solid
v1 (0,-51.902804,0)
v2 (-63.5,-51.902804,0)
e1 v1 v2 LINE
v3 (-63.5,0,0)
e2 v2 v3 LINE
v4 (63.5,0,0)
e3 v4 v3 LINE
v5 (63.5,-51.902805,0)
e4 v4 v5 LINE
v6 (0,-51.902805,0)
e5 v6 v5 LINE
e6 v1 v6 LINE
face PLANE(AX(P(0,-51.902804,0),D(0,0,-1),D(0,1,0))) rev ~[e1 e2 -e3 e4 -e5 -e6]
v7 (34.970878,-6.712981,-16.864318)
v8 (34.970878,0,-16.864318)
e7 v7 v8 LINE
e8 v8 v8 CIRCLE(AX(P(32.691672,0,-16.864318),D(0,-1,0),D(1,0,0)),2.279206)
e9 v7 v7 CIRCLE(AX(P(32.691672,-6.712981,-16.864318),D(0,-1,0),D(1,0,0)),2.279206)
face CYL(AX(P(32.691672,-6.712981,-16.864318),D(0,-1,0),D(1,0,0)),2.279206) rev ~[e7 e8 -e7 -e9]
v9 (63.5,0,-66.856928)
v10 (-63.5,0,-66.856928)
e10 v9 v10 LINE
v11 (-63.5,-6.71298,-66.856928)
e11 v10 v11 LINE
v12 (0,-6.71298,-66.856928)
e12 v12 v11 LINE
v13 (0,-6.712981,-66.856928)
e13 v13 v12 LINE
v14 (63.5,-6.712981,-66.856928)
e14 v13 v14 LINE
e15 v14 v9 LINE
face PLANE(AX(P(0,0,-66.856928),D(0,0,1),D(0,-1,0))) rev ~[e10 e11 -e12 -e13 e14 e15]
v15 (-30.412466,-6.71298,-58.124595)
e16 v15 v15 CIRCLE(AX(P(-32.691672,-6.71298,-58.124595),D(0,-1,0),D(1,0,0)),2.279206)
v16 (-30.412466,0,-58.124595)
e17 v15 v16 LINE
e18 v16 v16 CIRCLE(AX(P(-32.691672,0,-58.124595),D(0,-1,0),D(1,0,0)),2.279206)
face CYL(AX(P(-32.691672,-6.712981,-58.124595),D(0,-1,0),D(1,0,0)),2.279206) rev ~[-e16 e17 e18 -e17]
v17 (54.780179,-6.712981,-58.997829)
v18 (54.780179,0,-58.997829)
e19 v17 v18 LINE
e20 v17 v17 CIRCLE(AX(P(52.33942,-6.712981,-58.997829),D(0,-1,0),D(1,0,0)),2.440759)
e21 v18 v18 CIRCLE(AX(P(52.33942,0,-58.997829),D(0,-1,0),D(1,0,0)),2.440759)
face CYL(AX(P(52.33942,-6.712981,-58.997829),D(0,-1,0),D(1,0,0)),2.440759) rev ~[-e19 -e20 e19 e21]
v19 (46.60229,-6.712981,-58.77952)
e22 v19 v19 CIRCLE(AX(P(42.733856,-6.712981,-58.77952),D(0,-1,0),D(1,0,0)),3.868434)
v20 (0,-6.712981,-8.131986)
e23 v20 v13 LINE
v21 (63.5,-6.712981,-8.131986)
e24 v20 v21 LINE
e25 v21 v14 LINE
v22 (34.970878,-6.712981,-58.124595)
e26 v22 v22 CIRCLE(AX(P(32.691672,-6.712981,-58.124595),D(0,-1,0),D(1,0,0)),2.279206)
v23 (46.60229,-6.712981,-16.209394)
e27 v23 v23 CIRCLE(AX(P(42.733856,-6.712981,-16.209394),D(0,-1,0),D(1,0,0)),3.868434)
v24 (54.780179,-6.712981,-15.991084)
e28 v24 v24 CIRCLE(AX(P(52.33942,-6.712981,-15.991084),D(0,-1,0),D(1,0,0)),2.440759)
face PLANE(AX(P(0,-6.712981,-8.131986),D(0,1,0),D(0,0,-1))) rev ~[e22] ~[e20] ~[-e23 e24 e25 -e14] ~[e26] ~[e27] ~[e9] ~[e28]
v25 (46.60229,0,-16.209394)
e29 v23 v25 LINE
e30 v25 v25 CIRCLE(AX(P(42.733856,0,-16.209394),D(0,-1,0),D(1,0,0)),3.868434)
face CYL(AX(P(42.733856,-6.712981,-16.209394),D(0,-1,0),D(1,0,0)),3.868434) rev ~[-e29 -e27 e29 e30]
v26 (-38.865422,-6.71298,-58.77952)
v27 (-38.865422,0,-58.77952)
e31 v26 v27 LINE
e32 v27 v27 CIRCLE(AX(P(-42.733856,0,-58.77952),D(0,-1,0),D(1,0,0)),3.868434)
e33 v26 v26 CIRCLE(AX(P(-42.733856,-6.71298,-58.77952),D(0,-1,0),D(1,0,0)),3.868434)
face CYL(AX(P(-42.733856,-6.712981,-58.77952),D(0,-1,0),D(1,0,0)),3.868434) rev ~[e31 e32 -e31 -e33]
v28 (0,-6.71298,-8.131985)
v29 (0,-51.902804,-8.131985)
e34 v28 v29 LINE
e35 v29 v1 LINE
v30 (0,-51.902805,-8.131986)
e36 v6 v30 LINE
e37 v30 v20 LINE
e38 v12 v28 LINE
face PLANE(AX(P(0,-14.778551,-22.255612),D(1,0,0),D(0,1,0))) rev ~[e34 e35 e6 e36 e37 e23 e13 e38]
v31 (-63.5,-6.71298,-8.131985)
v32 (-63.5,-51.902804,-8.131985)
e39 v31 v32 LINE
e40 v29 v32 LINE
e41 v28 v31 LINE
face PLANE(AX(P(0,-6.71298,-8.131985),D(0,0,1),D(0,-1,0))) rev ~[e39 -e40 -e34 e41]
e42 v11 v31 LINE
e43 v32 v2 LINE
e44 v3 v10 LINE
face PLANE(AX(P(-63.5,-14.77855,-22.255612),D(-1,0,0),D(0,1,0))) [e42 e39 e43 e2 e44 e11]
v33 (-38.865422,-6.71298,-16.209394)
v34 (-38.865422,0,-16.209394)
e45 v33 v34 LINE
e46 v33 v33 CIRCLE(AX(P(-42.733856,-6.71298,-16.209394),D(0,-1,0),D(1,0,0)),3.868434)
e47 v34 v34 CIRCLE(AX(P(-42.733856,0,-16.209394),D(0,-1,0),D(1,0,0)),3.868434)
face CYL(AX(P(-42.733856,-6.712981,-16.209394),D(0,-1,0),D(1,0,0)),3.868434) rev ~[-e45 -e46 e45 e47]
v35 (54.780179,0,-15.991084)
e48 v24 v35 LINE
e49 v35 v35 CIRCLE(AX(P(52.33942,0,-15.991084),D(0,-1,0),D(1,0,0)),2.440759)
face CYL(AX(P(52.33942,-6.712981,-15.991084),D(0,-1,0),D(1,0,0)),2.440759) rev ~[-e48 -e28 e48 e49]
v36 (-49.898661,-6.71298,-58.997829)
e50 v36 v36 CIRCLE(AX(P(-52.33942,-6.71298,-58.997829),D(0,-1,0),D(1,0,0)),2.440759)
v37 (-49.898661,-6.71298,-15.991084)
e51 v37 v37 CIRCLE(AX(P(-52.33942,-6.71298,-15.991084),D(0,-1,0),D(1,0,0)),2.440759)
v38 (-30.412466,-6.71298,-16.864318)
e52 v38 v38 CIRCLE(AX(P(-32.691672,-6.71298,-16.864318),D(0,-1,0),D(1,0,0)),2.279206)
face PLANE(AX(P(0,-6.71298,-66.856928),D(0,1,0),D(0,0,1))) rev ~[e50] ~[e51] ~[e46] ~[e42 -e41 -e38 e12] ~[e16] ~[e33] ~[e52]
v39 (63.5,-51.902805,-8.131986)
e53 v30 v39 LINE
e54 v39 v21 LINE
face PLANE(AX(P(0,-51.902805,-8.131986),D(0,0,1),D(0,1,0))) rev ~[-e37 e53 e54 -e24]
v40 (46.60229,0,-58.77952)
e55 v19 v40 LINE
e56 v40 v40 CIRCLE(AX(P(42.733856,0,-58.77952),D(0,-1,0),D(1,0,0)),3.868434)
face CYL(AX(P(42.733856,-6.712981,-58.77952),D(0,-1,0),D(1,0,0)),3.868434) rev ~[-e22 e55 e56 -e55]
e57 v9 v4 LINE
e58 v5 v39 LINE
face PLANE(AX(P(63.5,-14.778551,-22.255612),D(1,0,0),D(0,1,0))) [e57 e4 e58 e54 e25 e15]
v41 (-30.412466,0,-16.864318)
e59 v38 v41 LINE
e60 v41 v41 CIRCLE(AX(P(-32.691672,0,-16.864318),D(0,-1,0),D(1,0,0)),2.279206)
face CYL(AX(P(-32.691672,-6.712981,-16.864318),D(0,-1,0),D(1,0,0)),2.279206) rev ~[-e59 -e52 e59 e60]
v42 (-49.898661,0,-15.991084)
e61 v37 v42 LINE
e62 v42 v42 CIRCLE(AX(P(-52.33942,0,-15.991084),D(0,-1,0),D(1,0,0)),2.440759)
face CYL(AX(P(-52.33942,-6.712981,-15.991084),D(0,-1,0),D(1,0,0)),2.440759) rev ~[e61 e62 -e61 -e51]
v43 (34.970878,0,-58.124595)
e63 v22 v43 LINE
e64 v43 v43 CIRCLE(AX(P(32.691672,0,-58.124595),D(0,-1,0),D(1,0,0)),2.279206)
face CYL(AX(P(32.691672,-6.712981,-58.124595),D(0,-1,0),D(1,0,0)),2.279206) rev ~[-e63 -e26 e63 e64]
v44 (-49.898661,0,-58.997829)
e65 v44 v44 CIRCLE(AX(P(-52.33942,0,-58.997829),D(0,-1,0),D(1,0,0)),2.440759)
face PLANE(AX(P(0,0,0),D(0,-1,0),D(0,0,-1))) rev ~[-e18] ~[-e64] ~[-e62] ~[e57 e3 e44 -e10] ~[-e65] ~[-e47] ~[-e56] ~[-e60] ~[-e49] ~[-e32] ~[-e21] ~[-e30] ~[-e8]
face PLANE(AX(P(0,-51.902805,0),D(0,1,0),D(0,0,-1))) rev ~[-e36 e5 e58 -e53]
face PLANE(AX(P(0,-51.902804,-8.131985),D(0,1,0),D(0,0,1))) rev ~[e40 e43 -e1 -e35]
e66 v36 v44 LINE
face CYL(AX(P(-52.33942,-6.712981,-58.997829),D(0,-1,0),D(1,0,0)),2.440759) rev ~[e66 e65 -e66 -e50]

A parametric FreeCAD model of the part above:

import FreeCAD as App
import Part
import Sketcher
Q = App.Units.Quantity

doc = App.newDocument("Part")
body = doc.addObject("PartDesign::Body", "Body")

sketch1 = doc.addObject("Sketcher::SketchObject", "Sketch")
body.addObject(sketch1)
sketch1.AttachmentSupport = (doc.YZ_Plane, [""])
sketch1.MapMode = "FlatFace"
sketch1.addGeometry([
    Part.LineSegment(App.Vector(0, 0, 0), App.Vector(-52, 0, 0)),
    Part.LineSegment(App.Vector(-52, 0, 0), App.Vector(-52, -8, 0)),
    Part.LineSegment(App.Vector(-52, -8, 0), App.Vector(-7, -8, 0)),
    Part.LineSegment(App.Vector(-7, -8, 0), App.Vector(-7, -67, 0)),
    Part.LineSegment(App.Vector(-7, -67, 0), App.Vector(0, -67, 0)),
    Part.LineSegment(App.Vector(0, -67, 0), App.Vector(0, 0, 0)),
], False)
sketch1.addConstraint([
    Sketcher.Constraint("Coincident", 0, 2, 1, 1),
    Sketcher.Constraint("Coincident", 1, 2, 2, 1),
    Sketcher.Constraint("Coincident", 2, 2, 3, 1),
    Sketcher.Constraint("Coincident", 3, 2, 4, 1),
    Sketcher.Constraint("Coincident", 4, 2, 5, 1),
    Sketcher.Constraint("Coincident", 5, 2, 0, 1),
    Sketcher.Constraint("Horizontal", 0),
    Sketcher.Constraint("Vertical", 1),
    Sketcher.Constraint("Horizontal", 2),
    Sketcher.Constraint("Vertical", 3),
    Sketcher.Constraint("Horizontal", 4),
    Sketcher.Constraint("Vertical", 5),
    Sketcher.Constraint("Coincident", 5, 2, -1, 1),
    Sketcher.Constraint("DistanceX", 4, 1, 4, 2, 6.712981),
    Sketcher.Constraint("DistanceX", 0, 2, 0, 1, 51.902805),
    Sketcher.Constraint("DistanceY", 1, 2, 1, 1, 8.131986),
    Sketcher.Constraint("DistanceY", 3, 2, 3, 1, 58.724942),
])
pad1 = doc.addObject("PartDesign::Pad", "Pad")
body.addObject(pad1)
pad1.Profile = sketch1
pad1.Length = Q("2.5 in")

sketch2 = doc.addObject("Sketcher::SketchObject", "Sketch001")
body.addObject(sketch2)
sketch2.AttachmentSupport = (doc.YZ_Plane, [""])
sketch2.MapMode = "FlatFace"
sketch2.addGeometry([
    Part.LineSegment(App.Vector(-52, 0, 0), App.Vector(0, 0, 0)),
    Part.LineSegment(App.Vector(0, 0, 0), App.Vector(0, -67, 0)),
    Part.LineSegment(App.Vector(0, -67, 0), App.Vector(-7, -67, 0)),
    Part.LineSegment(App.Vector(-7, -67, 0), App.Vector(-7, -8, 0)),
    Part.LineSegment(App.Vector(-7, -8, 0), App.Vector(-52, -8, 0)),
    Part.LineSegment(App.Vector(-52, -8, 0), App.Vector(-52, 0, 0)),
], False)
sketch2.addConstraint([
    Sketcher.Constraint("Coincident", 0, 2, 1, 1),
    Sketcher.Constraint("Coincident", 1, 2, 2, 1),
    Sketcher.Constraint("Coincident", 2, 2, 3, 1),
    Sketcher.Constraint("Coincident", 3, 2, 4, 1),
    Sketcher.Constraint("Coincident", 4, 2, 5, 1),
    Sketcher.Constraint("Coincident", 5, 2, 0, 1),
    Sketcher.Constraint("Horizontal", 0),
    Sketcher.Constraint("Vertical", 1),
    Sketcher.Constraint("Horizontal", 2),
    Sketcher.Constraint("Vertical", 3),
    Sketcher.Constraint("Horizontal", 4),
    Sketcher.Constraint("Vertical", 5),
    Sketcher.Constraint("Coincident", 0, 2, -1, 1),
    Sketcher.Constraint("DistanceX", 2, 2, 2, 1, 6.71298),
    Sketcher.Constraint("DistanceX", 0, 1, 0, 2, 51.902804),
    Sketcher.Constraint("DistanceY", 1, 2, 1, 1, 66.856928),
    Sketcher.Constraint("DistanceY", 3, 1, 3, 2, 58.724943),
])
pad2 = doc.addObject("PartDesign::Pad", "Pad001")
body.addObject(pad2)
pad2.Profile = sketch2
pad2.Length = Q("2.5 in")
pad2.Reversed = True

sketch3 = doc.addObject("Sketcher::SketchObject", "Sketch002")
body.addObject(sketch3)
sketch3.AttachmentSupport = (doc.XZ_Plane, [""])
sketch3.MapMode = "FlatFace"
sketch3.AttachmentOffset = App.Placement(App.Vector(0, 0, 6.712981), App.Rotation())
sketch3.addGeometry([
    Part.Circle(App.Vector(-52.3, -16, 0), App.Vector(0, 0, 1), 2.4),
    Part.Circle(App.Vector(-42.7, -16.2, 0), App.Vector(0, 0, 1), 3.9),
    Part.Circle(App.Vector(-32.7, -16.9, 0), App.Vector(0, 0, 1), 2.3),
    Part.Circle(App.Vector(32.7, -16.9, 0), App.Vector(0, 0, 1), 2.3),
    Part.Circle(App.Vector(42.7, -16.2, 0), App.Vector(0, 0, 1), 3.9),
    Part.Circle(App.Vector(52.3, -16, 0), App.Vector(0, 0, 1), 2.4),
    Part.Circle(App.Vector(52.3, -59, 0), App.Vector(0, 0, 1), 2.4),
    Part.Circle(App.Vector(42.7, -58.8, 0), App.Vector(0, 0, 1), 3.9),
    Part.Circle(App.Vector(32.7, -58.1, 0), App.Vector(0, 0, 1), 2.3),
    Part.Circle(App.Vector(-52.3, -59, 0), App.Vector(0, 0, 1), 2.4),
    Part.Circle(App.Vector(-42.7, -58.8, 0), App.Vector(0, 0, 1), 3.9),
    Part.Circle(App.Vector(-32.7, -58.1, 0), App.Vector(0, 0, 1), 2.3),
], False)
sketch3.addConstraint([
    Sketcher.Constraint("Equal", 2, 3),
    Sketcher.Constraint("Equal", 1, 4),
    Sketcher.Constraint("Equal", 0, 5),
    Sketcher.Constraint("Equal", 5, 6),
    Sketcher.Constraint("Equal", 4, 7),
    Sketcher.Constraint("Equal", 3, 8),
    Sketcher.Constraint("Equal", 6, 9),
    Sketcher.Constraint("Equal", 7, 10),
    Sketcher.Constraint("Equal", 8, 11),
    Sketcher.Constraint("Symmetric", 2, 3, 3, 3, -2),
    Sketcher.Constraint("Symmetric", 1, 3, 4, 3, -2),
    Sketcher.Constraint("Symmetric", 0, 3, 5, 3, -2),
    Sketcher.Constraint("Symmetric", 6, 3, 9, 3, -2),
    Sketcher.Constraint("Symmetric", 7, 3, 10, 3, -2),
    Sketcher.Constraint("Symmetric", 8, 3, 11, 3, -2),
    Sketcher.Constraint("Vertical", 5, 3, 6, 3),
    Sketcher.Constraint("Vertical", 4, 3, 7, 3),
    Sketcher.Constraint("Vertical", 3, 3, 8, 3),
    Sketcher.Constraint("Diameter", 1, 7.736868),
    Sketcher.Constraint("Diameter", 2, 4.558412),
    Sketcher.Constraint("Diameter", 0, 4.881518),
    Sketcher.Constraint("DistanceY", 7, 3, 3, 3, 41.915202),
    Sketcher.Constraint("DistanceY", 8, 3, 4, 3, 41.915201),
    Sketcher.Constraint("DistanceX", 0, 3, -1, 1, 52.33942),
    Sketcher.Constraint("DistanceX", 2, 3, -1, 1, 32.691672),
    Sketcher.Constraint("DistanceY", 2, 3, -1, 1, 16.864318),
    Sketcher.Constraint("DistanceY", 6, 3, -1, 1, 58.997829),
    Sketcher.Constraint("DistanceY", 1, 3, 0, 3, 0.21831),
    Sketcher.Constraint("DistanceX", 1, 3, 3, 3, 75.425528),
    Sketcher.Constraint("DistanceY", 0, 3, -1, 1, 15.991084),
])
pocket1 = doc.addObject("PartDesign::Pocket", "Pocket")
body.addObject(pocket1)
pocket1.Profile = sketch3
pocket1.Length = Q("1 in")

doc.recompute()
